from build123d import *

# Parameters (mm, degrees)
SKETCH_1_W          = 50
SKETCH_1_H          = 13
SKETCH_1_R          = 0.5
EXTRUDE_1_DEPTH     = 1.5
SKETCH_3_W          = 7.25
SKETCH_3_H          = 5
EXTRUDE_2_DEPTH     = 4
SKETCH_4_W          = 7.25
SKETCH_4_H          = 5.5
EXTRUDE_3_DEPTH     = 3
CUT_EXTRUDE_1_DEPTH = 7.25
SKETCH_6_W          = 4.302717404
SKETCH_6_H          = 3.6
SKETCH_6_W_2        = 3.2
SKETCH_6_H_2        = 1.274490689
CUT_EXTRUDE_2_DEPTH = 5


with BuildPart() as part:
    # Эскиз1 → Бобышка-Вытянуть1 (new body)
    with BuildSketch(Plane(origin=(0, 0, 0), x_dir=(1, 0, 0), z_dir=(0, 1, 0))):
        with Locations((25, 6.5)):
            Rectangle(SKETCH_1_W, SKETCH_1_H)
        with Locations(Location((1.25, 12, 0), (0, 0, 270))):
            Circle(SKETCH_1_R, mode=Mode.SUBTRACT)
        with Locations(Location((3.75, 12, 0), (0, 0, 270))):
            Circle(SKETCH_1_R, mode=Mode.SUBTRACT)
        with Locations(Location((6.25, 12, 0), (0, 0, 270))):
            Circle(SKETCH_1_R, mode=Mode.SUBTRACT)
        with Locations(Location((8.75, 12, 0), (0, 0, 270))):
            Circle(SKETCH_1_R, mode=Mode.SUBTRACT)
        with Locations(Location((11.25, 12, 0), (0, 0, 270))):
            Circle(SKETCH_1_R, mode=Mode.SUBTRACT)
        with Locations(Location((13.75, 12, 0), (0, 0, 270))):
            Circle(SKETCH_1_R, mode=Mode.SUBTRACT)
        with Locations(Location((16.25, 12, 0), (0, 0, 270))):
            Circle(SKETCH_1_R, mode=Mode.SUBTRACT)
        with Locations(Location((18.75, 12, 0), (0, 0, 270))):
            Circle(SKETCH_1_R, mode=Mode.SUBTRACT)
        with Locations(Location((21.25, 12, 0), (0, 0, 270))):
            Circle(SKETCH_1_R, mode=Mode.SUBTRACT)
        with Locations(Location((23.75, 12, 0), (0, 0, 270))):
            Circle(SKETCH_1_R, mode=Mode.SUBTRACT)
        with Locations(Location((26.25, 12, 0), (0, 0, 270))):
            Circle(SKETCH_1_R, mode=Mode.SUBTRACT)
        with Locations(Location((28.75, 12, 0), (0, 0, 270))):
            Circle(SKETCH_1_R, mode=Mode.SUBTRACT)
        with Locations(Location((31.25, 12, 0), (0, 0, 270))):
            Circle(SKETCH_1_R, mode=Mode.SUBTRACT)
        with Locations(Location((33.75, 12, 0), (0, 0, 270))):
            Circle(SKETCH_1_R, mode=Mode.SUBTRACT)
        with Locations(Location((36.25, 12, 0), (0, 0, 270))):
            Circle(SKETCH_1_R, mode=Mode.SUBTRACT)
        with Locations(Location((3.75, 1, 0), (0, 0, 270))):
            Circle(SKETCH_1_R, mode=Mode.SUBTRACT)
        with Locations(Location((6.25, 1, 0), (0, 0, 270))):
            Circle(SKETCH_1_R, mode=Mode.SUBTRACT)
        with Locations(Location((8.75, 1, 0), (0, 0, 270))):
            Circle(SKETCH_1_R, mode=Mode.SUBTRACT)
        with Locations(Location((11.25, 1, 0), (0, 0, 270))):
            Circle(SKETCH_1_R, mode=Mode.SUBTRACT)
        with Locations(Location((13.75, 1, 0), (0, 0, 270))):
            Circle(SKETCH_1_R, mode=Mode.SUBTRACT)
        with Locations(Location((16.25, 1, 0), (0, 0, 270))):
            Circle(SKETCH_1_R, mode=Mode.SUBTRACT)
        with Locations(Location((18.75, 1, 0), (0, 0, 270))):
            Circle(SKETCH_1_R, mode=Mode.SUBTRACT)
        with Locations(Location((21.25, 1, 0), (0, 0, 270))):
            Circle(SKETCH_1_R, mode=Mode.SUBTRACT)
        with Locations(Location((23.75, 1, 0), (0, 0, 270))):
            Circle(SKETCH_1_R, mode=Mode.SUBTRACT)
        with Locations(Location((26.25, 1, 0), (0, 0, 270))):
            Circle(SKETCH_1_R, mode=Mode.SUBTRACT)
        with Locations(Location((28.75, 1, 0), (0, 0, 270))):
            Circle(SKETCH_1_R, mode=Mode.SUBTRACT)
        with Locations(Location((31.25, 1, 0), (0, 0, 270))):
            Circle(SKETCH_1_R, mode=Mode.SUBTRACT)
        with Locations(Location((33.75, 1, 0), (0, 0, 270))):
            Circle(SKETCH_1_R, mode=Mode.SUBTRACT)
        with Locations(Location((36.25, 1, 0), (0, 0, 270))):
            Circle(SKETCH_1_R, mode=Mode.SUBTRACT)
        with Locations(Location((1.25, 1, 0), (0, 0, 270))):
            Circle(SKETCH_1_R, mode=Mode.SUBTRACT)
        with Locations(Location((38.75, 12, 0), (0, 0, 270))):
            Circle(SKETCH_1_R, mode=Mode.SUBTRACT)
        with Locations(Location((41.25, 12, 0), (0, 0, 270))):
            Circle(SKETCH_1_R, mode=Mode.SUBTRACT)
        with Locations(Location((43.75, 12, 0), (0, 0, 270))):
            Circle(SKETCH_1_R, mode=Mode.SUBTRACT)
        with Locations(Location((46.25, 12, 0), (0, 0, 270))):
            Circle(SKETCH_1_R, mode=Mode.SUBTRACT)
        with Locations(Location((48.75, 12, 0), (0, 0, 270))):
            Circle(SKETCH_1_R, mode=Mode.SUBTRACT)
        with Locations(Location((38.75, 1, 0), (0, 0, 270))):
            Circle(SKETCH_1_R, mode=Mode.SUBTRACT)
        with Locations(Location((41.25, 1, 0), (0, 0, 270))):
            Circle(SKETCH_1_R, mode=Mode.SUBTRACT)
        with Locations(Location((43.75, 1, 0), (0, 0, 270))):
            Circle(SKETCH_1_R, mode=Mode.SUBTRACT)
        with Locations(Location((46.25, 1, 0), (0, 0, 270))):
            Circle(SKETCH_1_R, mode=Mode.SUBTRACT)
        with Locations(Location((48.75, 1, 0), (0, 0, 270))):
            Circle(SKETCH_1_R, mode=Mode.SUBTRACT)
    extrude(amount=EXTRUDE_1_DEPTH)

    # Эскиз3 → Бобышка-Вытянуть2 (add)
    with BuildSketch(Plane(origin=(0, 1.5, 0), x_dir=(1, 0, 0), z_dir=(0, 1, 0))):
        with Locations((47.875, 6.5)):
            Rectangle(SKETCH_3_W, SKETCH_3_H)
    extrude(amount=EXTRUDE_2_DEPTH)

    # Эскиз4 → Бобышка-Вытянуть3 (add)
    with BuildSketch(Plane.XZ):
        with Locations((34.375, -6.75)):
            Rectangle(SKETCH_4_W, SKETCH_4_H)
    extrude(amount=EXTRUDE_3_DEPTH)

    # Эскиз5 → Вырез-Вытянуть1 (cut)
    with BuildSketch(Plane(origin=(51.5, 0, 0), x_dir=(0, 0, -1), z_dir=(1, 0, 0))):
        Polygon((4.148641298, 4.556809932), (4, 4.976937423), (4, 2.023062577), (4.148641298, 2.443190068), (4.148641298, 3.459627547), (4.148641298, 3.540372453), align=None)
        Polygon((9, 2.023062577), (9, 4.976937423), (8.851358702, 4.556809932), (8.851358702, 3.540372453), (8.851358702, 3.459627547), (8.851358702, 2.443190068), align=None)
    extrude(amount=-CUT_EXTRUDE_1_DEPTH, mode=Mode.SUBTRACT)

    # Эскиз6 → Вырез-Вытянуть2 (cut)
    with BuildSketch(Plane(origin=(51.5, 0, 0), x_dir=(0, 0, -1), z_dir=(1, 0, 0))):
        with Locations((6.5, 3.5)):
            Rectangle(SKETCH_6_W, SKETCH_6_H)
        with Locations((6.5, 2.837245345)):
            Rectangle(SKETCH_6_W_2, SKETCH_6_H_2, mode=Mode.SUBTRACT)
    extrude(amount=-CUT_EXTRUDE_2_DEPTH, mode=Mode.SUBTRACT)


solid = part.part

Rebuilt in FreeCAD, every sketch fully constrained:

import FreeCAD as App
import Part
import Sketcher

doc = App.newDocument("Part")
params = doc.addObject("Spreadsheet::Sheet", "Params")
for row, (alias, value) in enumerate([
    ("sketch1_diameter", "1 mm"),
    ("sketch1_width", "50 mm"),
    ("sketch1_height", "13 mm"),
    ("pad1_length", "1.5 mm"),
    ("sketch2_height", "5 mm"),
    ("sketch2_width", "7.25 mm"),
    ("pad2_length", "4 mm"),
    ("sketch3_height", "5.5 mm"),
    ("sketch3_width", "7.25 mm"),
    ("pad3_length", "3 mm"),
    ("pocket1_length", "7.25 mm"),
    ("sketch5_width", "3.6 mm"),
    ("sketch5_height", "3.2 mm"),
    ("pocket2_length", "5 mm"),
], start=1):
    params.set(f"A{row}", alias)
    params.set(f"B{row}", "=" + value)
    params.setAlias(f"B{row}", alias)

body = doc.addObject("PartDesign::Body", "Body")

# Sketch on XZ plane
sketch1 = body.newObject("Sketcher::SketchObject", "Sketch")
sketch1.AttachmentSupport = (doc.getObject("XZ_Plane"), [""])
sketch1.MapMode = "FlatFace"
sketch1.addGeometry(Part.LineSegment(App.Vector(0, -13, 0), App.Vector(0, 0, 0)), False)
sketch1.addGeometry(Part.LineSegment(App.Vector(0, 0, 0), App.Vector(50, 0, 0)), False)
sketch1.addGeometry(Part.LineSegment(App.Vector(50, 0, 0), App.Vector(50, -13, 0)), False)
sketch1.addGeometry(Part.LineSegment(App.Vector(50, -13, 0), App.Vector(0, -13, 0)), False)
sketch1.addGeometry(Part.Circle(App.Vector(1.2, -1, 0), App.Vector(0, 0, 1), 0.5), False)
sketch1.addGeometry(Part.Circle(App.Vector(3.8, -1, 0), App.Vector(0, 0, 1), 0.5), False)
sketch1.addGeometry(Part.Circle(App.Vector(6.2, -1, 0), App.Vector(0, 0, 1), 0.5), False)
sketch1.addGeometry(Part.Circle(App.Vector(8.8, -1, 0), App.Vector(0, 0, 1), 0.5), False)
sketch1.addGeometry(Part.Circle(App.Vector(11.2, -1, 0), App.Vector(0, 0, 1), 0.5), False)
sketch1.addGeometry(Part.Circle(App.Vector(13.8, -1, 0), App.Vector(0, 0, 1), 0.5), False)
sketch1.addGeometry(Part.Circle(App.Vector(16.2, -1, 0), App.Vector(0, 0, 1), 0.5), False)
sketch1.addGeometry(Part.Circle(App.Vector(18.8, -1, 0), App.Vector(0, 0, 1), 0.5), False)
sketch1.addGeometry(Part.Circle(App.Vector(21.2, -1, 0), App.Vector(0, 0, 1), 0.5), False)
sketch1.addGeometry(Part.Circle(App.Vector(23.8, -1, 0), App.Vector(0, 0, 1), 0.5), False)
sketch1.addGeometry(Part.Circle(App.Vector(26.2, -1, 0), App.Vector(0, 0, 1), 0.5), False)
sketch1.addGeometry(Part.Circle(App.Vector(28.8, -1, 0), App.Vector(0, 0, 1), 0.5), False)
sketch1.addGeometry(Part.Circle(App.Vector(31.2, -1, 0), App.Vector(0, 0, 1), 0.5), False)
sketch1.addGeometry(Part.Circle(App.Vector(33.8, -1, 0), App.Vector(0, 0, 1), 0.5), False)
sketch1.addGeometry(Part.Circle(App.Vector(36.2, -1, 0), App.Vector(0, 0, 1), 0.5), False)
sketch1.addGeometry(Part.Circle(App.Vector(38.8, -1, 0), App.Vector(0, 0, 1), 0.5), False)
sketch1.addGeometry(Part.Circle(App.Vector(41.2, -1, 0), App.Vector(0, 0, 1), 0.5), False)
sketch1.addGeometry(Part.Circle(App.Vector(43.8, -1, 0), App.Vector(0, 0, 1), 0.5), False)
sketch1.addGeometry(Part.Circle(App.Vector(46.2, -1, 0), App.Vector(0, 0, 1), 0.5), False)
sketch1.addGeometry(Part.Circle(App.Vector(48.8, -1, 0), App.Vector(0, 0, 1), 0.5), False)
sketch1.addGeometry(Part.Circle(App.Vector(1.2, -12, 0), App.Vector(0, 0, 1), 0.5), False)
sketch1.addGeometry(Part.Circle(App.Vector(3.8, -12, 0), App.Vector(0, 0, 1), 0.5), False)
sketch1.addGeometry(Part.Circle(App.Vector(6.2, -12, 0), App.Vector(0, 0, 1), 0.5), False)
sketch1.addGeometry(Part.Circle(App.Vector(8.8, -12, 0), App.Vector(0, 0, 1), 0.5), False)
sketch1.addGeometry(Part.Circle(App.Vector(11.2, -12, 0), App.Vector(0, 0, 1), 0.5), False)
sketch1.addGeometry(Part.Circle(App.Vector(13.8, -12, 0), App.Vector(0, 0, 1), 0.5), False)
sketch1.addGeometry(Part.Circle(App.Vector(16.2, -12, 0), App.Vector(0, 0, 1), 0.5), False)
sketch1.addGeometry(Part.Circle(App.Vector(18.8, -12, 0), App.Vector(0, 0, 1), 0.5), False)
sketch1.addGeometry(Part.Circle(App.Vector(21.2, -12, 0), App.Vector(0, 0, 1), 0.5), False)
sketch1.addGeometry(Part.Circle(App.Vector(23.8, -12, 0), App.Vector(0, 0, 1), 0.5), False)
sketch1.addGeometry(Part.Circle(App.Vector(26.2, -12, 0), App.Vector(0, 0, 1), 0.5), False)
sketch1.addGeometry(Part.Circle(App.Vector(28.8, -12, 0), App.Vector(0, 0, 1), 0.5), False)
sketch1.addGeometry(Part.Circle(App.Vector(31.2, -12, 0), App.Vector(0, 0, 1), 0.5), False)
sketch1.addGeometry(Part.Circle(App.Vector(33.8, -12, 0), App.Vector(0, 0, 1), 0.5), False)
sketch1.addGeometry(Part.Circle(App.Vector(36.2, -12, 0), App.Vector(0, 0, 1), 0.5), False)
sketch1.addGeometry(Part.Circle(App.Vector(38.8, -12, 0), App.Vector(0, 0, 1), 0.5), False)
sketch1.addGeometry(Part.Circle(App.Vector(41.2, -12, 0), App.Vector(0, 0, 1), 0.5), False)
sketch1.addGeometry(Part.Circle(App.Vector(43.8, -12, 0), App.Vector(0, 0, 1), 0.5), False)
sketch1.addGeometry(Part.Circle(App.Vector(46.2, -12, 0), App.Vector(0, 0, 1), 0.5), False)
sketch1.addGeometry(Part.Circle(App.Vector(48.8, -12, 0), App.Vector(0, 0, 1), 0.5), False)
sketch1.addConstraint(Sketcher.Constraint("Coincident", 0, 2, 1, 1))
sketch1.addConstraint(Sketcher.Constraint("Coincident", 1, 2, 2, 1))
sketch1.addConstraint(Sketcher.Constraint("Coincident", 2, 2, 3, 1))
sketch1.addConstraint(Sketcher.Constraint("Coincident", 3, 2, 0, 1))
sketch1.addConstraint(Sketcher.Constraint("Vertical", 0))
sketch1.addConstraint(Sketcher.Constraint("Horizontal", 1))
sketch1.addConstraint(Sketcher.Constraint("Vertical", 2))
sketch1.addConstraint(Sketcher.Constraint("Horizontal", 3))
sketch1.addConstraint(Sketcher.Constraint("Coincident", 0, 2, -1, 1))
sketch1.addConstraint(Sketcher.Constraint("Equal", 4, 5))
sketch1.addConstraint(Sketcher.Constraint("Equal", 5, 6))
sketch1.addConstraint(Sketcher.Constraint("Equal", 6, 7))
sketch1.addConstraint(Sketcher.Constraint("Equal", 7, 8))
sketch1.addConstraint(Sketcher.Constraint("Equal", 8, 9))
sketch1.addConstraint(Sketcher.Constraint("Equal", 9, 10))
sketch1.addConstraint(Sketcher.Constraint("Equal", 10, 11))
sketch1.addConstraint(Sketcher.Constraint("Equal", 11, 12))
sketch1.addConstraint(Sketcher.Constraint("Equal", 12, 13))
sketch1.addConstraint(Sketcher.Constraint("Equal", 13, 14))
sketch1.addConstraint(Sketcher.Constraint("Equal", 14, 15))
sketch1.addConstraint(Sketcher.Constraint("Equal", 15, 16))
sketch1.addConstraint(Sketcher.Constraint("Equal", 16, 17))
sketch1.addConstraint(Sketcher.Constraint("Equal", 17, 18))
sketch1.addConstraint(Sketcher.Constraint("Equal", 18, 19))
sketch1.addConstraint(Sketcher.Constraint("Equal", 19, 20))
sketch1.addConstraint(Sketcher.Constraint("Equal", 20, 21))
sketch1.addConstraint(Sketcher.Constraint("Equal", 21, 22))
sketch1.addConstraint(Sketcher.Constraint("Equal", 22, 23))
sketch1.addConstraint(Sketcher.Constraint("Equal", 23, 24))
sketch1.addConstraint(Sketcher.Constraint("Equal", 24, 25))
sketch1.addConstraint(Sketcher.Constraint("Equal", 25, 26))
sketch1.addConstraint(Sketcher.Constraint("Equal", 26, 27))
sketch1.addConstraint(Sketcher.Constraint("Equal", 27, 28))
sketch1.addConstraint(Sketcher.Constraint("Equal", 28, 29))
sketch1.addConstraint(Sketcher.Constraint("Equal", 29, 30))
sketch1.addConstraint(Sketcher.Constraint("Equal", 30, 31))
sketch1.addConstraint(Sketcher.Constraint("Equal", 31, 32))
sketch1.addConstraint(Sketcher.Constraint("Equal", 32, 33))
sketch1.addConstraint(Sketcher.Constraint("Equal", 33, 34))
sketch1.addConstraint(Sketcher.Constraint("Equal", 34, 35))
sketch1.addConstraint(Sketcher.Constraint("Equal", 35, 36))
sketch1.addConstraint(Sketcher.Constraint("Equal", 36, 37))
sketch1.addConstraint(Sketcher.Constraint("Equal", 37, 38))
sketch1.addConstraint(Sketcher.Constraint("Equal", 38, 39))
sketch1.addConstraint(Sketcher.Constraint("Equal", 39, 40))
sketch1.addConstraint(Sketcher.Constraint("Equal", 40, 41))
sketch1.addConstraint(Sketcher.Constraint("Equal", 41, 42))
sketch1.addConstraint(Sketcher.Constraint("Equal", 42, 43))
sketch1.addConstraint(Sketcher.Constraint("Horizontal", 4, 3, 5, 3))
sketch1.addConstraint(Sketcher.Constraint("Horizontal", 5, 3, 6, 3))
sketch1.addConstraint(Sketcher.Constraint("Horizontal", 6, 3, 7, 3))
sketch1.addConstraint(Sketcher.Constraint("Horizontal", 7, 3, 8, 3))
sketch1.addConstraint(Sketcher.Constraint("Horizontal", 8, 3, 9, 3))
sketch1.addConstraint(Sketcher.Constraint("Horizontal", 9, 3, 10, 3))
sketch1.addConstraint(Sketcher.Constraint("Horizontal", 10, 3, 11, 3))
sketch1.addConstraint(Sketcher.Constraint("Horizontal", 11, 3, 12, 3))
sketch1.addConstraint(Sketcher.Constraint("Horizontal", 12, 3, 13, 3))
sketch1.addConstraint(Sketcher.Constraint("Horizontal", 13, 3, 14, 3))
sketch1.addConstraint(Sketcher.Constraint("Horizontal", 14, 3, 15, 3))
sketch1.addConstraint(Sketcher.Constraint("Horizontal", 15, 3, 16, 3))
sketch1.addConstraint(Sketcher.Constraint("Horizontal", 16, 3, 17, 3))
sketch1.addConstraint(Sketcher.Constraint("Horizontal", 17, 3, 18, 3))
sketch1.addConstraint(Sketcher.Constraint("Horizontal", 18, 3, 19, 3))
sketch1.addConstraint(Sketcher.Constraint("Horizontal", 19, 3, 20, 3))
sketch1.addConstraint(Sketcher.Constraint("Horizontal", 20, 3, 21, 3))
sketch1.addConstraint(Sketcher.Constraint("Horizontal", 21, 3, 22, 3))
sketch1.addConstraint(Sketcher.Constraint("Horizontal", 22, 3, 23, 3))
sketch1.addConstraint(Sketcher.Constraint("Horizontal", 24, 3, 25, 3))
sketch1.addConstraint(Sketcher.Constraint("Horizontal", 25, 3, 26, 3))
sketch1.addConstraint(Sketcher.Constraint("Horizontal", 26, 3, 27, 3))
sketch1.addConstraint(Sketcher.Constraint("Horizontal", 27, 3, 28, 3))
sketch1.addConstraint(Sketcher.Constraint("Horizontal", 28, 3, 29, 3))
sketch1.addConstraint(Sketcher.Constraint("Horizontal", 29, 3, 30, 3))
sketch1.addConstraint(Sketcher.Constraint("Horizontal", 30, 3, 31, 3))
sketch1.addConstraint(Sketcher.Constraint("Horizontal", 31, 3, 32, 3))
sketch1.addConstraint(Sketcher.Constraint("Horizontal", 32, 3, 33, 3))
sketch1.addConstraint(Sketcher.Constraint("Horizontal", 33, 3, 34, 3))
sketch1.addConstraint(Sketcher.Constraint("Horizontal", 34, 3, 35, 3))
sketch1.addConstraint(Sketcher.Constraint("Horizontal", 35, 3, 36, 3))
sketch1.addConstraint(Sketcher.Constraint("Horizontal", 36, 3, 37, 3))
sketch1.addConstraint(Sketcher.Constraint("Horizontal", 37, 3, 38, 3))
sketch1.addConstraint(Sketcher.Constraint("Horizontal", 38, 3, 39, 3))
sketch1.addConstraint(Sketcher.Constraint("Horizontal", 39, 3, 40, 3))
sketch1.addConstraint(Sketcher.Constraint("Horizontal", 40, 3, 41, 3))
sketch1.addConstraint(Sketcher.Constraint("Horizontal", 41, 3, 42, 3))
sketch1.addConstraint(Sketcher.Constraint("Horizontal", 42, 3, 43, 3))
sketch1.addConstraint(Sketcher.Constraint("Vertical", 4, 3, 24, 3))
sketch1.addConstraint(Sketcher.Constraint("Vertical", 5, 3, 25, 3))
sketch1.addConstraint(Sketcher.Constraint("Vertical", 6, 3, 26, 3))
sketch1.addConstraint(Sketcher.Constraint("Vertical", 7, 3, 27, 3))
sketch1.addConstraint(Sketcher.Constraint("Vertical", 8, 3, 28, 3))
sketch1.addConstraint(Sketcher.Constraint("Vertical", 9, 3, 29, 3))
sketch1.addConstraint(Sketcher.Constraint("Vertical", 10, 3, 30, 3))
sketch1.addConstraint(Sketcher.Constraint("Vertical", 11, 3, 31, 3))
sketch1.addConstraint(Sketcher.Constraint("Vertical", 12, 3, 32, 3))
sketch1.addConstraint(Sketcher.Constraint("Vertical", 13, 3, 33, 3))
sketch1.addConstraint(Sketcher.Constraint("Vertical", 14, 3, 34, 3))
sketch1.addConstraint(Sketcher.Constraint("Vertical", 15, 3, 35, 3))
sketch1.addConstraint(Sketcher.Constraint("Vertical", 16, 3, 36, 3))
sketch1.addConstraint(Sketcher.Constraint("Vertical", 17, 3, 37, 3))
sketch1.addConstraint(Sketcher.Constraint("Vertical", 18, 3, 38, 3))
sketch1.addConstraint(Sketcher.Constraint("Vertical", 19, 3, 39, 3))
sketch1.addConstraint(Sketcher.Constraint("Vertical", 20, 3, 40, 3))
sketch1.addConstraint(Sketcher.Constraint("Vertical", 21, 3, 41, 3))
sketch1.addConstraint(Sketcher.Constraint("Vertical", 22, 3, 42, 3))
sketch1.addConstraint(Sketcher.Constraint("Vertical", 23, 3, 43, 3))
sketch1.addConstraint(Sketcher.Constraint("Diameter", 4, 1.0))
sketch1.addConstraint(Sketcher.Constraint("DistanceX", 1, 1, 1, 2, 50.0))
sketch1.addConstraint(Sketcher.Constraint("DistanceY", 0, 1, 0, 2, 13.0))
sketch1.addConstraint(Sketcher.Constraint("DistanceY", 4, 3, -1, 1, 1.0))
sketch1.addConstraint(Sketcher.Constraint("DistanceY", 24, 3, -1, 1, 12.0))
sketch1.addConstraint(Sketcher.Constraint("DistanceX", 4, 3, 6, 3, 5.0))
sketch1.addConstraint(Sketcher.Constraint("DistanceX", 5, 3, 7, 3, 5.0))
sketch1.addConstraint(Sketcher.Constraint("DistanceX", 6, 3, 8, 3, 5.0))
sketch1.addConstraint(Sketcher.Constraint("DistanceX", 7, 3, 9, 3, 5.0))
sketch1.addConstraint(Sketcher.Constraint("DistanceX", 8, 3, 10, 3, 5.0))
sketch1.addConstraint(Sketcher.Constraint("DistanceX", 9, 3, 11, 3, 5.0))
sketch1.addConstraint(Sketcher.Constraint("DistanceX", 10, 3, 12, 3, 5.0))
sketch1.addConstraint(Sketcher.Constraint("DistanceX", 11, 3, 13, 3, 5.0))
sketch1.addConstraint(Sketcher.Constraint("DistanceX", 12, 3, 14, 3, 5.0))
sketch1.addConstraint(Sketcher.Constraint("DistanceX", 13, 3, 15, 3, 5.0))
sketch1.addConstraint(Sketcher.Constraint("DistanceX", 14, 3, 16, 3, 5.0))
sketch1.addConstraint(Sketcher.Constraint("DistanceX", 15, 3, 17, 3, 5.0))
sketch1.addConstraint(Sketcher.Constraint("DistanceX", 16, 3, 18, 3, 5.0))
sketch1.addConstraint(Sketcher.Constraint("DistanceX", 17, 3, 19, 3, 5.0))
sketch1.addConstraint(Sketcher.Constraint("DistanceX", 18, 3, 20, 3, 5.0))
sketch1.addConstraint(Sketcher.Constraint("DistanceX", 19, 3, 21, 3, 5.0))
sketch1.addConstraint(Sketcher.Constraint("DistanceX", 20, 3, 22, 3, 5.0))
sketch1.addConstraint(Sketcher.Constraint("DistanceX", 21, 3, 23, 3, 5.0))
sketch1.addConstraint(Sketcher.Constraint("DistanceX", 4, 3, 5, 3, 2.5))
sketch1.addConstraint(Sketcher.Constraint("DistanceX", -1, 1, 4, 3, 1.25))
sketch1.setExpression("Constraints[106]", "Params.sketch1_diameter")
sketch1.setExpression("Constraints[107]", "Params.sketch1_width")
sketch1.setExpression("Constraints[108]", "Params.sketch1_height")
pad1 = body.newObject("PartDesign::Pad", "Pad")
pad1.Profile = sketch1
pad1.setExpression("Length", "Params.pad1_length")
pad1.Reversed = True

# Sketch on XZ plane
sketch2 = body.newObject("Sketcher::SketchObject", "Sketch001")
sketch2.AttachmentSupport = (doc.getObject("XZ_Plane"), [""])
sketch2.MapMode = "FlatFace"
sketch2.AttachmentOffset = App.Placement(App.Vector(0, 0, -1.5), App.Rotation())
sketch2.addGeometry(Part.LineSegment(App.Vector(44, -9, 0), App.Vector(44, -4, 0)), False)
sketch2.addGeometry(Part.LineSegment(App.Vector(44, -4, 0), App.Vector(52, -4, 0)), False)
sketch2.addGeometry(Part.LineSegment(App.Vector(52, -4, 0), App.Vector(52, -9, 0)), False)
sketch2.addGeometry(Part.LineSegment(App.Vector(52, -9, 0), App.Vector(44, -9, 0)), False)
sketch2.addConstraint(Sketcher.Constraint("Coincident", 0, 2, 1, 1))
sketch2.addConstraint(Sketcher.Constraint("Coincident", 1, 2, 2, 1))
sketch2.addConstraint(Sketcher.Constraint("Coincident", 2, 2, 3, 1))
sketch2.addConstraint(Sketcher.Constraint("Coincident", 3, 2, 0, 1))
sketch2.addConstraint(Sketcher.Constraint("Vertical", 0))
sketch2.addConstraint(Sketcher.Constraint("Horizontal", 1))
sketch2.addConstraint(Sketcher.Constraint("Vertical", 2))
sketch2.addConstraint(Sketcher.Constraint("Horizontal", 3))
sketch2.addConstraint(Sketcher.Constraint("DistanceY", 0, 1, 0, 2, 5.0))
sketch2.addConstraint(Sketcher.Constraint("DistanceY", 0, 2, -1, 1, 4.0))
sketch2.addConstraint(Sketcher.Constraint("DistanceX", 1, 1, 1, 2, 7.25))
sketch2.addConstraint(Sketcher.Constraint("DistanceX", -1, 1, 1, 2, 51.5))
sketch2.setExpression("Constraints[8]", "Params.sketch2_height")
sketch2.setExpression("Constraints[10]", "Params.sketch2_width")
pad2 = body.newObject("PartDesign::Pad", "Pad001")
pad2.Profile = sketch2
pad2.setExpression("Length", "Params.pad2_length")
pad2.Reversed = True

# Sketch on XZ plane
sketch3 = body.newObject("Sketcher::SketchObject", "Sketch002")
sketch3.AttachmentSupport = (doc.getObject("XZ_Plane"), [""])
sketch3.MapMode = "FlatFace"
sketch3.addGeometry(Part.LineSegment(App.Vector(31, -4, 0), App.Vector(31, -10, 0)), False)
sketch3.addGeometry(Part.LineSegment(App.Vector(31, -10, 0), App.Vector(38, -10, 0)), False)
sketch3.addGeometry(Part.LineSegment(App.Vector(38, -10, 0), App.Vector(38, -4, 0)), False)
sketch3.addGeometry(Part.LineSegment(App.Vector(38, -4, 0), App.Vector(31, -4, 0)), False)
sketch3.addConstraint(Sketcher.Constraint("Coincident", 0, 2, 1, 1))
sketch3.addConstraint(Sketcher.Constraint("Coincident", 1, 2, 2, 1))
sketch3.addConstraint(Sketcher.Constraint("Coincident", 2, 2, 3, 1))
sketch3.addConstraint(Sketcher.Constraint("Coincident", 3, 2, 0, 1))
sketch3.addConstraint(Sketcher.Constraint("Vertical", 0))
sketch3.addConstraint(Sketcher.Constraint("Horizontal", 1))
sketch3.addConstraint(Sketcher.Constraint("Vertical", 2))
sketch3.addConstraint(Sketcher.Constraint("Horizontal", 3))
sketch3.addConstraint(Sketcher.Constraint("DistanceY", 0, 2, 0, 1, 5.5))
sketch3.addConstraint(Sketcher.Constraint("DistanceX", -1, 1, 1, 2, 38.0))
sketch3.addConstraint(Sketcher.Constraint("DistanceY", 2, 2, -1, 1, 4.0))
sketch3.addConstraint(Sketcher.Constraint("DistanceX", 1, 1, 1, 2, 7.25))
sketch3.setExpression("Constraints[8]", "Params.sketch3_height")
sketch3.setExpression("Constraints[11]", "Params.sketch3_width")
pad3 = body.newObject("PartDesign::Pad", "Pad002")
pad3.Profile = sketch3
pad3.setExpression("Length", "Params.pad3_length")

# Sketch on YZ plane
sketch4 = body.newObject("Sketcher::SketchObject", "Sketch003")
sketch4.AttachmentSupport = (doc.getObject("YZ_Plane"), [""])
sketch4.MapMode = "FlatFace"
sketch4.AttachmentOffset = App.Placement(App.Vector(0, 0, 51.5), App.Rotation())
sketch4.addGeometry(Part.LineSegment(App.Vector(4.56, -4.15, 0), App.Vector(4.98, -4, 0)), False)
sketch4.addGeometry(Part.LineSegment(App.Vector(4.98, -4, 0), App.Vector(2.02, -4, 0)), False)
sketch4.addGeometry(Part.LineSegment(App.Vector(2.02, -4, 0), App.Vector(2.44, -4.15, 0)), False)
sketch4.addGeometry(Part.LineSegment(App.Vector(2.44, -4.15, 0), App.Vector(4.56, -4.15, 0)), False)
sketch4.addGeometry(Part.LineSegment(App.Vector(2.02, -9, 0), App.Vector(4.98, -9, 0)), False)
sketch4.addGeometry(Part.LineSegment(App.Vector(4.98, -9, 0), App.Vector(4.56, -8.85, 0)), False)
sketch4.addGeometry(Part.LineSegment(App.Vector(4.56, -8.85, 0), App.Vector(2.44, -8.85, 0)), False)
sketch4.addGeometry(Part.LineSegment(App.Vector(2.44, -8.85, 0), App.Vector(2.02, -9, 0)), False)
sketch4.addConstraint(Sketcher.Constraint("Coincident", 0, 2, 1, 1))
sketch4.addConstraint(Sketcher.Constraint("Coincident", 1, 2, 2, 1))
sketch4.addConstraint(Sketcher.Constraint("Coincident", 2, 2, 3, 1))
sketch4.addConstraint(Sketcher.Constraint("Coincident", 3, 2, 0, 1))
sketch4.addConstraint(Sketcher.Constraint("Coincident", 4, 2, 5, 1))
sketch4.addConstraint(Sketcher.Constraint("Coincident", 5, 2, 6, 1))
sketch4.addConstraint(Sketcher.Constraint("Coincident", 6, 2, 7, 1))
sketch4.addConstraint(Sketcher.Constraint("Coincident", 7, 2, 4, 1))
sketch4.addConstraint(Sketcher.Constraint("Horizontal", 1))
sketch4.addConstraint(Sketcher.Constraint("Horizontal", 3))
sketch4.addConstraint(Sketcher.Constraint("Horizontal", 4))
sketch4.addConstraint(Sketcher.Constraint("Horizontal", 6))
sketch4.addConstraint(Sketcher.Constraint("Parallel", 2, 5))
sketch4.addConstraint(Sketcher.Constraint("Parallel", 0, 7))
sketch4.addConstraint(Sketcher.Constraint("Vertical", 0, 2, 4, 2))
sketch4.addConstraint(Sketcher.Constraint("Vertical", 3, 2, 5, 2))
sketch4.addConstraint(Sketcher.Constraint("Vertical", 2, 2, 6, 2))
sketch4.addConstraint(Sketcher.Constraint("Vertical", 1, 2, 7, 2))
sketch4.addConstraint(Sketcher.Constraint("DistanceY", 0, 2, -1, 1, 4.0))
sketch4.addConstraint(Sketcher.Constraint("DistanceY", 4, 2, -1, 1, 9.0))
sketch4.addConstraint(Sketcher.Constraint("DistanceX", 3, 1, 3, 2, 2.11362))
sketch4.addConstraint(Sketcher.Constraint("DistanceX", 1, 2, 1, 1, 2.953875))
sketch4.addConstraint(Sketcher.Constraint("DistanceX", -1, 1, 2, 2, 2.44319))
sketch4.addConstraint(Sketcher.Constraint("DistanceY", 2, 2, -1, 1, 4.148641))
pocket1 = body.newObject("PartDesign::Pocket", "Pocket")
pocket1.Profile = sketch4
pocket1.setExpression("Length", "Params.pocket1_length")

# Sketch on YZ plane
sketch5 = body.newObject("Sketcher::SketchObject", "Sketch004")
sketch5.AttachmentSupport = (doc.getObject("YZ_Plane"), [""])
sketch5.MapMode = "FlatFace"
sketch5.AttachmentOffset = App.Placement(App.Vector(0, 0, 51.5), App.Rotation())
sketch5.addGeometry(Part.LineSegment(App.Vector(5.3, -4.3, 0), App.Vector(1.7, -4.3, 0)), False)
sketch5.addGeometry(Part.LineSegment(App.Vector(1.7, -4.3, 0), App.Vector(1.7, -8.7, 0)), False)
sketch5.addGeometry(Part.LineSegment(App.Vector(1.7, -8.7, 0), App.Vector(5.3, -8.7, 0)), False)
sketch5.addGeometry(Part.LineSegment(App.Vector(5.3, -8.7, 0), App.Vector(5.3, -4.3, 0)), False)
sketch5.addGeometry(Part.LineSegment(App.Vector(2.2, -8.1, 0), App.Vector(2.2, -4.9, 0)), False)
sketch5.addGeometry(Part.LineSegment(App.Vector(2.2, -4.9, 0), App.Vector(3.5, -4.9, 0)), False)
sketch5.addGeometry(Part.LineSegment(App.Vector(3.5, -4.9, 0), App.Vector(3.5, -8.1, 0)), False)
sketch5.addGeometry(Part.LineSegment(App.Vector(3.5, -8.1, 0), App.Vector(2.2, -8.1, 0)), False)
sketch5.addConstraint(Sketcher.Constraint("Coincident", 0, 2, 1, 1))
sketch5.addConstraint(Sketcher.Constraint("Coincident", 1, 2, 2, 1))
sketch5.addConstraint(Sketcher.Constraint("Coincident", 2, 2, 3, 1))
sketch5.addConstraint(Sketcher.Constraint("Coincident", 3, 2, 0, 1))
sketch5.addConstraint(Sketcher.Constraint("Coincident", 4, 2, 5, 1))
sketch5.addConstraint(Sketcher.Constraint("Coincident", 5, 2, 6, 1))
sketch5.addConstraint(Sketcher.Constraint("Coincident", 6, 2, 7, 1))
sketch5.addConstraint(Sketcher.Constraint("Coincident", 7, 2, 4, 1))
sketch5.addConstraint(Sketcher.Constraint("Horizontal", 0))
sketch5.addConstraint(Sketcher.Constraint("Vertical", 1))
sketch5.addConstraint(Sketcher.Constraint("Horizontal", 2))
sketch5.addConstraint(Sketcher.Constraint("Vertical", 3))
sketch5.addConstraint(Sketcher.Constraint("Vertical", 4))
sketch5.addConstraint(Sketcher.Constraint("Horizontal", 5))
sketch5.addConstraint(Sketcher.Constraint("Vertical", 6))
sketch5.addConstraint(Sketcher.Constraint("Horizontal", 7))
sketch5.addConstraint(Sketcher.Constraint("DistanceX", 0, 2, 0, 1, 3.6))
sketch5.addConstraint(Sketcher.Constraint("DistanceY", 4, 1, 4, 2, 3.2))
sketch5.addConstraint(Sketcher.Constraint("DistanceX", -1, 1, 0, 2, 1.7))
sketch5.addConstraint(Sketcher.Constraint("DistanceX", -1, 1, 4, 2, 2.2))
sketch5.addConstraint(Sketcher.Constraint("DistanceY", 4, 2, -1, 1, 4.9))
sketch5.addConstraint(Sketcher.Constraint("DistanceX", 5, 1, 5, 2, 1.274491))
sketch5.addConstraint(Sketcher.Constraint("DistanceY", 1, 2, 1, 1, 4.302717))
sketch5.addConstraint(Sketcher.Constraint("DistanceY", 0, 2, -1, 1, 4.348641))
sketch5.setExpression("Constraints[16]", "Params.sketch5_width")
sketch5.setExpression("Constraints[17]", "Params.sketch5_height")
pocket2 = body.newObject("PartDesign::Pocket", "Pocket001")
pocket2.Profile = sketch5
pocket2.setExpression("Length", "Params.pocket2_length")

doc.recompute()
